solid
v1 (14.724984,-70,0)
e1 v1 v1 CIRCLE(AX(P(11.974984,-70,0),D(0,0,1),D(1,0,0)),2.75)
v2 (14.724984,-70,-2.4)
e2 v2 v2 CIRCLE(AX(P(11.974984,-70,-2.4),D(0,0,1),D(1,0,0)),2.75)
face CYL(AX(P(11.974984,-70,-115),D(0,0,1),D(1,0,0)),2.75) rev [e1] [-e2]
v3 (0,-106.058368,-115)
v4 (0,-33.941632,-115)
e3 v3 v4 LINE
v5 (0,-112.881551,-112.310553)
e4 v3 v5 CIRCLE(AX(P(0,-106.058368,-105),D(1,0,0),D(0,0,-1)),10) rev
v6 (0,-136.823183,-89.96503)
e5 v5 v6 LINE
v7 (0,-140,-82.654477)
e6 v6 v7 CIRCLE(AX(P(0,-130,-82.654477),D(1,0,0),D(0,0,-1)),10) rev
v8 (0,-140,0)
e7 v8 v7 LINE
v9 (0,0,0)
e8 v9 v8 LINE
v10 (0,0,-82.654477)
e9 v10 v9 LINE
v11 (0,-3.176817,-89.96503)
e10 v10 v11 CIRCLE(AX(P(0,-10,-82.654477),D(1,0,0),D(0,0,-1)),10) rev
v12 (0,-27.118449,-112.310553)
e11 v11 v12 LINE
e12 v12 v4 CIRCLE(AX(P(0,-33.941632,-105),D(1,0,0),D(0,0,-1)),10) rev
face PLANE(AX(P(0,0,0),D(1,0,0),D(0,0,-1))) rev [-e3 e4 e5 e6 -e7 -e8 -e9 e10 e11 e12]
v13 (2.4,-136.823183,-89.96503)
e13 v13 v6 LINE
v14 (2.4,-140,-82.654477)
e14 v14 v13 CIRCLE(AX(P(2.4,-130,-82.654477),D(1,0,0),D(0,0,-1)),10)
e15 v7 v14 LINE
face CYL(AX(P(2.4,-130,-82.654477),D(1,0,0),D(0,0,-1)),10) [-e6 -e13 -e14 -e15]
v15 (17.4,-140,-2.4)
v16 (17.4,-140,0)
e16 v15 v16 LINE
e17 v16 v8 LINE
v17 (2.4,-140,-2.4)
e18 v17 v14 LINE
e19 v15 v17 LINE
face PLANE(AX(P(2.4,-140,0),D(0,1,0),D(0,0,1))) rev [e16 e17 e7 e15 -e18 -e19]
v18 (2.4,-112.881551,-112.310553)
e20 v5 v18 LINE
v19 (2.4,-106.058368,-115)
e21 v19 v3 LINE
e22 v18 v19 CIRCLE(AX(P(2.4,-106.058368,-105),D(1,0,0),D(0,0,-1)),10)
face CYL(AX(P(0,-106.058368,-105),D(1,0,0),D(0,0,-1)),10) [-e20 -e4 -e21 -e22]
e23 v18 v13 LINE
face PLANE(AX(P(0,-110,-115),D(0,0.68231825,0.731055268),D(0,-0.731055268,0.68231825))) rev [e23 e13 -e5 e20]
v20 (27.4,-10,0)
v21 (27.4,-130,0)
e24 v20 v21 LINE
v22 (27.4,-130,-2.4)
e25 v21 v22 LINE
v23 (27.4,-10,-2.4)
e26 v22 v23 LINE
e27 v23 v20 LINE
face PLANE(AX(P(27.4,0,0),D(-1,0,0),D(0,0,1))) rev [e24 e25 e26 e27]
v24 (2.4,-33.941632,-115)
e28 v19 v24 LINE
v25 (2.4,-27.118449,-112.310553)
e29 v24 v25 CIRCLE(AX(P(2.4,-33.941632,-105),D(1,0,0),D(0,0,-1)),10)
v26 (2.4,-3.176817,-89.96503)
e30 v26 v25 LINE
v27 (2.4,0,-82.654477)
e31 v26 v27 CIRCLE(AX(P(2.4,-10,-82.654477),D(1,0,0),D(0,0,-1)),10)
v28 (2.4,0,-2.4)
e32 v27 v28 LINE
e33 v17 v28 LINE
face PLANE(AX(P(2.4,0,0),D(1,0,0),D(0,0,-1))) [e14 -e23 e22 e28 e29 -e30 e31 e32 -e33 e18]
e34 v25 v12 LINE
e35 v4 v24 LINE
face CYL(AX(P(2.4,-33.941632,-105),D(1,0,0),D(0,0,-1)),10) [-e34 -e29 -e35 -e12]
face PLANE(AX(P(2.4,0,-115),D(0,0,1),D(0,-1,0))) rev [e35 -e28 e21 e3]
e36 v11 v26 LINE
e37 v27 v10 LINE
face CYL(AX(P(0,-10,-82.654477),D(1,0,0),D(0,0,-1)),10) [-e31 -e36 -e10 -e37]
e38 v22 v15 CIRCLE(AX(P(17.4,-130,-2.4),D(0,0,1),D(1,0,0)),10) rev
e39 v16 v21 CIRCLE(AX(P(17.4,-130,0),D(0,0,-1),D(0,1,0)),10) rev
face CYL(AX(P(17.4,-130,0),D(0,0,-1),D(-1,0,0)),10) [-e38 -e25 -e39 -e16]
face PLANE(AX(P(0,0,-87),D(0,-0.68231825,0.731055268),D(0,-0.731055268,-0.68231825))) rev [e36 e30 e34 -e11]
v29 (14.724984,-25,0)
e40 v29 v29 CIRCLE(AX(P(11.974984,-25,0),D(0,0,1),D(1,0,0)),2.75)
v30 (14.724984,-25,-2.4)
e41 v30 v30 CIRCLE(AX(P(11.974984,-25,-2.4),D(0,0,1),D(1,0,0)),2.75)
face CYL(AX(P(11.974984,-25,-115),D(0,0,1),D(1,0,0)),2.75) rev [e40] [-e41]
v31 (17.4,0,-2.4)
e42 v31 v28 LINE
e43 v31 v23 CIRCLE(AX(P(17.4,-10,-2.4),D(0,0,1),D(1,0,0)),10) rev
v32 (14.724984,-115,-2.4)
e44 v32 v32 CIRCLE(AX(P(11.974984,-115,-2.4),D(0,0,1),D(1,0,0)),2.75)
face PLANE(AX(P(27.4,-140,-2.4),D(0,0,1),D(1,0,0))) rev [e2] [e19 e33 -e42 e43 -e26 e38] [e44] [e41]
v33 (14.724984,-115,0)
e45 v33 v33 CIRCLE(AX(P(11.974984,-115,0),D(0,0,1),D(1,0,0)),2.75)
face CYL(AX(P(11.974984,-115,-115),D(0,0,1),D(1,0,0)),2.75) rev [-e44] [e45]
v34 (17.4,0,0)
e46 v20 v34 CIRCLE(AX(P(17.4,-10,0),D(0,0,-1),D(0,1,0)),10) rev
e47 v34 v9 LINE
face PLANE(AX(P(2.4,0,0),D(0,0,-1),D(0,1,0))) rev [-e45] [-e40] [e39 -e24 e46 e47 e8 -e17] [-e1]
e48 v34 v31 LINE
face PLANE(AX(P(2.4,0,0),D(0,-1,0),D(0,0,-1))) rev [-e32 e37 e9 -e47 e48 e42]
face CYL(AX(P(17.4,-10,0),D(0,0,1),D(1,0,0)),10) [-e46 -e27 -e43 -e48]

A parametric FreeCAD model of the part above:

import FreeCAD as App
import Part
import Sketcher

V = App.Vector
Q = App.Units.Quantity


def edges_at(feature, points):
    """Names of the edges that pass closest to the given points."""
    edges = feature.Shape.Edges
    near = lambda p: min(range(len(edges)), key=lambda i: edges[i].distToShape(Part.Vertex(*p))[0])
    return sorted({f"Edge{near(p) + 1}" for p in points})

doc = App.newDocument("Part")
body = doc.addObject("PartDesign::Body", "Body")

# Sketch on YZ plane
sketch1 = body.newObject("Sketcher::SketchObject", "Sketch")
sketch1.AttachmentSupport = (doc.getObject("YZ_Plane"), [""])
sketch1.MapMode = "FlatFace"
sketch1.addGeometry([
    Part.LineSegment(V(0, 0, 0), V(-140, 0, 0)),
    Part.LineSegment(V(-140, 0, 0), V(-140, -115, 0)),
    Part.LineSegment(V(-140, -115, 0), V(0, -115, 0)),
    Part.LineSegment(V(0, -115, 0), V(0, 0, 0)),
], False)
sketch1.addConstraint([
    Sketcher.Constraint("Coincident", 0, 2, 1, 1),
    Sketcher.Constraint("Coincident", 1, 2, 2, 1),
    Sketcher.Constraint("Coincident", 2, 2, 3, 1),
    Sketcher.Constraint("Coincident", 3, 2, 0, 1),
    Sketcher.Constraint("Horizontal", 0),
    Sketcher.Constraint("Vertical", 1),
    Sketcher.Constraint("Horizontal", 2),
    Sketcher.Constraint("Vertical", 3),
    Sketcher.Constraint("Coincident", 3, 2, -1, 1),
    Sketcher.Constraint("DistanceX", 0, 2, 0, 1, Q("140 mm")),
    Sketcher.Constraint("DistanceY", 1, 2, 1, 1, Q("115 mm")),
])
pad1 = body.newObject("PartDesign::Pad", "Pad")
pad1.Profile = sketch1
pad1.Length = 2.4

# Sketch on YZ plane
sketch2 = body.newObject("Sketcher::SketchObject", "Sketch001")
sketch2.AttachmentSupport = (doc.getObject("YZ_Plane"), [""])
sketch2.MapMode = "FlatFace"
sketch2.AttachmentOffset = App.Placement(V(0, 0, 2.4), App.Rotation())
sketch2.addGeometry([
    Part.LineSegment(V(0, -87, 0), V(-30, -115, 0)),  # 0
    Part.LineSegment(V(-30, -115, 0), V(-32.505406, -142.6162, 0)),  # 1
    Part.LineSegment(V(-32.505406, -142.6162, 0), V(14.875556, -142.6162, 0)),  # 2
    Part.LineSegment(V(14.875556, -142.6162, 0), V(0, -87, 0)),  # 3
    Part.LineSegment(V(-110, -115, 0), V(-140, -87, 0)),  # 4
    Part.LineSegment(V(-140, -87, 0), V(-152.66111, -87, 0)),  # 5
    Part.LineSegment(V(-152.66111, -87, 0), V(-152.66111, -136.310005, 0)),  # 6
    Part.LineSegment(V(-152.66111, -136.310005, 0), V(-110, -115, 0)),  # 7
], False)
sketch2.addConstraint([
    Sketcher.Constraint("Coincident", 0, 2, 1, 1),
    Sketcher.Constraint("Coincident", 1, 2, 2, 1),
    Sketcher.Constraint("Coincident", 2, 2, 3, 1),
    Sketcher.Constraint("Coincident", 3, 2, 0, 1),
    Sketcher.Constraint("Coincident", 4, 2, 5, 1),
    Sketcher.Constraint("Coincident", 5, 2, 6, 1),
    Sketcher.Constraint("Coincident", 6, 2, 7, 1),
    Sketcher.Constraint("Coincident", 7, 2, 4, 1),
    Sketcher.Constraint("Horizontal", 2),
    Sketcher.Constraint("Horizontal", 5),
    Sketcher.Constraint("Vertical", 6),
    Sketcher.Constraint("PointOnObject", 3, 2, -2),
    Sketcher.Constraint("Horizontal", 3, 2, 4, 2),
    Sketcher.Constraint("Horizontal", 0, 2, 7, 2),
    Sketcher.Constraint("Equal", 0, 4),
    Sketcher.Constraint("DistanceX", 0, 2, -1, 1, Q("30 mm")),
    Sketcher.Constraint("DistanceY", 0, 2, -1, 1, Q("115 mm")),
    Sketcher.Constraint("DistanceY", 3, 2, -1, 1, Q("87 mm")),
    Sketcher.Constraint("DistanceX", 4, 2, -1, 1, Q("140 mm")),
    Sketcher.Constraint("DistanceX", 5, 2, 5, 1, Q("12.66111 mm")),
    Sketcher.Constraint("DistanceY", 1, 2, -1, 1, Q("142.6162 mm")),
    Sketcher.Constraint("DistanceX", 2, 1, 2, 2, Q("47.380962 mm")),
    Sketcher.Constraint("DistanceY", 6, 2, 6, 1, Q("49.310005 mm")),
    Sketcher.Constraint("Distance", 1, Q("27.729615 mm")),
])
pocket1 = body.newObject("PartDesign::Pocket", "Pocket")
pocket1.Profile = sketch2
pocket1.Type = "ThroughAll"
doc.recompute()

fillet = body.newObject("PartDesign::Fillet", "Fillet")
fillet.Base = (pocket1, edges_at(pocket1, [
    (1.2, 0, -87),
    (1.2, -30, -115),
    (1.2, -110, -115),
    (1.2, -140, -87),
]))
fillet.Radius = 10

# Sketch on YZ plane
sketch3 = body.newObject("Sketcher::SketchObject", "Sketch002")
sketch3.AttachmentSupport = (doc.getObject("YZ_Plane"), [""])
sketch3.MapMode = "FlatFace"
sketch3.AttachmentOffset = App.Placement(V(0, 0, 2.4), App.Rotation())
sketch3.addGeometry([
    Part.LineSegment(V(0, 0, 0), V(-140, 0, 0)),
    Part.LineSegment(V(-140, 0, 0), V(-140, -2.4, 0)),
    Part.LineSegment(V(-140, -2.4, 0), V(0, -2.4, 0)),
    Part.LineSegment(V(0, -2.4, 0), V(0, 0, 0)),
], False)
sketch3.addConstraint([
    Sketcher.Constraint("Coincident", 0, 2, 1, 1),
    Sketcher.Constraint("Coincident", 1, 2, 2, 1),
    Sketcher.Constraint("Coincident", 2, 2, 3, 1),
    Sketcher.Constraint("Coincident", 3, 2, 0, 1),
    Sketcher.Constraint("Horizontal", 0),
    Sketcher.Constraint("Vertical", 1),
    Sketcher.Constraint("Horizontal", 2),
    Sketcher.Constraint("Vertical", 3),
    Sketcher.Constraint("Coincident", 3, 2, -1, 1),
    Sketcher.Constraint("DistanceX", 0, 2, 0, 1, Q("140 mm")),
    Sketcher.Constraint("DistanceY", 1, 2, 1, 1, Q("2.4 mm")),
])
pad2 = body.newObject("PartDesign::Pad", "Pad001")
pad2.Profile = sketch3
pad2.Length = 25
doc.recompute()

fillet2 = body.newObject("PartDesign::Fillet", "Fillet001")
fillet2.Base = (pad2, edges_at(pad2, [(27.4, -140, -1.2), (27.4, 0, -1.2)]))
fillet2.Radius = 10

# Sketch on XY plane
sketch4 = body.newObject("Sketcher::SketchObject", "Sketch003")
sketch4.AttachmentSupport = (doc.getObject("XY_Plane"), [""])
sketch4.MapMode = "FlatFace"
sketch4.addGeometry([
    Part.Circle(V(11.974984, -70, 0), V(0, 0, 1), 2.75),
    Part.Circle(V(11.974984, -25, 0), V(0, 0, 1), 2.75),
    Part.Circle(V(11.974984, -115, 0), V(0, 0, 1), 2.75),
], False)
sketch4.addConstraint([
    Sketcher.Constraint("Equal", 0, 1),
    Sketcher.Constraint("Equal", 1, 2),
    Sketcher.Constraint("Vertical", 0, 3, 1, 3),
    Sketcher.Constraint("Vertical", 1, 3, 2, 3),
    Sketcher.Constraint("Diameter", 0, Q("5.5 mm")),
    Sketcher.Constraint("DistanceY", 0, 3, -1, 1, Q("70 mm")),
    Sketcher.Constraint("DistanceY", 1, 3, -1, 1, Q("25 mm")),
    Sketcher.Constraint("DistanceY", 2, 3, -1, 1, Q("115 mm")),
    Sketcher.Constraint("DistanceX", -1, 1, 0, 3, Q("11.974984 mm")),
])
pocket2 = body.newObject("PartDesign::Pocket", "Pocket001")
pocket2.Profile = sketch4
pocket2.Type = "ThroughAll"

doc.recompute()
